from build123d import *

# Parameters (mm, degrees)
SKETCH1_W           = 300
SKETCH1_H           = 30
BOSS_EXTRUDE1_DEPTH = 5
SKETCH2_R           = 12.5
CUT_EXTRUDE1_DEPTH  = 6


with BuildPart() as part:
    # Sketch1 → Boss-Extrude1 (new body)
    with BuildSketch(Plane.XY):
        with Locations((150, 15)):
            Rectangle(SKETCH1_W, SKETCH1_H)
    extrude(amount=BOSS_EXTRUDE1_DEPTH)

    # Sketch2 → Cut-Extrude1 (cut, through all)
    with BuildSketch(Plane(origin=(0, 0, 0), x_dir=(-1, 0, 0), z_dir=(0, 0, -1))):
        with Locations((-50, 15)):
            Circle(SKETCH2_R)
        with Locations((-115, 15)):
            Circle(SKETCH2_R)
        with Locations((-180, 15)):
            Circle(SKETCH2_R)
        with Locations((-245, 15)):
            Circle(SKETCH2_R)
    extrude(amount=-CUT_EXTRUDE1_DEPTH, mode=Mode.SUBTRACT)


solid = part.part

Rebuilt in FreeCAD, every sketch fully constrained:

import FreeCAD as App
import Part
import Sketcher

V = App.Vector


def add_polygon(sketch, points):
    """Adds a closed chain of lines whose ends are joined by coincident constraints."""
    first, n = sketch.GeometryCount, len(points)
    for a, b in zip(points, points[1:] + points[:1]):
        sketch.addGeometry(Part.LineSegment(App.Vector(*a, 0), App.Vector(*b, 0)), False)
    for i in range(n):
        sketch.addConstraint(Sketcher.Constraint("Coincident", first + i, 2, first + (i + 1) % n, 1))

doc = App.newDocument("Part")
body = doc.addObject("PartDesign::Body", "Body")

sketch1 = body.newObject("Sketcher::SketchObject", "Sketch")
sketch1.AttachmentSupport = (doc.getObject("XY_Plane"), [""])
sketch1.MapMode = "FlatFace"
add_polygon(sketch1, [(0, 30), (0, 0), (300, 0), (300, 30)])
sketch1.addConstraint([
    Sketcher.Constraint("Vertical", 0),
    Sketcher.Constraint("Horizontal", 1),
    Sketcher.Constraint("Vertical", 2),
    Sketcher.Constraint("Horizontal", 3),
    Sketcher.Constraint("Coincident", 0, 2, -1, 1),
    Sketcher.Constraint("DistanceX", 1, 1, 1, 2, 300.0),
    Sketcher.Constraint("DistanceY", 0, 2, 0, 1, 30.0),
])
pad1 = body.newObject("PartDesign::Pad", "Pad")
pad1.Profile = sketch1
pad1.Length = 5

sketch2 = body.newObject("Sketcher::SketchObject", "Sketch001")
sketch2.AttachmentSupport = (doc.getObject("XY_Plane"), [""])
sketch2.MapMode = "FlatFace"
sketch2.addGeometry([
    Part.Circle(V(50, 15, 0), V(0, 0, 1), 12),
    Part.Circle(V(115, 15, 0), V(0, 0, 1), 12),
    Part.Circle(V(180, 15, 0), V(0, 0, 1), 12),
    Part.Circle(V(245, 15, 0), V(0, 0, 1), 12),
], False)
sketch2.addConstraint([
    Sketcher.Constraint("Equal", 0, 1),
    Sketcher.Constraint("Equal", 1, 2),
    Sketcher.Constraint("Equal", 2, 3),
    Sketcher.Constraint("Horizontal", 0, 3, 1, 3),
    Sketcher.Constraint("Horizontal", 1, 3, 2, 3),
    Sketcher.Constraint("Horizontal", 2, 3, 3, 3),
    Sketcher.Constraint("Diameter", 0, 25.0),
    Sketcher.Constraint("DistanceX", -1, 1, 0, 3, 50.0),
    Sketcher.Constraint("DistanceY", -1, 1, 0, 3, 15.0),
    Sketcher.Constraint("DistanceX", -1, 1, 1, 3, 115.0),
    Sketcher.Constraint("DistanceX", -1, 1, 2, 3, 180.0),
    Sketcher.Constraint("DistanceX", -1, 1, 3, 3, 245.0),
])
pocket1 = body.newObject("PartDesign::Pocket", "Pocket")
pocket1.Profile = sketch2
pocket1.Type = "ThroughAll"
pocket1.Reversed = True

doc.recompute()
